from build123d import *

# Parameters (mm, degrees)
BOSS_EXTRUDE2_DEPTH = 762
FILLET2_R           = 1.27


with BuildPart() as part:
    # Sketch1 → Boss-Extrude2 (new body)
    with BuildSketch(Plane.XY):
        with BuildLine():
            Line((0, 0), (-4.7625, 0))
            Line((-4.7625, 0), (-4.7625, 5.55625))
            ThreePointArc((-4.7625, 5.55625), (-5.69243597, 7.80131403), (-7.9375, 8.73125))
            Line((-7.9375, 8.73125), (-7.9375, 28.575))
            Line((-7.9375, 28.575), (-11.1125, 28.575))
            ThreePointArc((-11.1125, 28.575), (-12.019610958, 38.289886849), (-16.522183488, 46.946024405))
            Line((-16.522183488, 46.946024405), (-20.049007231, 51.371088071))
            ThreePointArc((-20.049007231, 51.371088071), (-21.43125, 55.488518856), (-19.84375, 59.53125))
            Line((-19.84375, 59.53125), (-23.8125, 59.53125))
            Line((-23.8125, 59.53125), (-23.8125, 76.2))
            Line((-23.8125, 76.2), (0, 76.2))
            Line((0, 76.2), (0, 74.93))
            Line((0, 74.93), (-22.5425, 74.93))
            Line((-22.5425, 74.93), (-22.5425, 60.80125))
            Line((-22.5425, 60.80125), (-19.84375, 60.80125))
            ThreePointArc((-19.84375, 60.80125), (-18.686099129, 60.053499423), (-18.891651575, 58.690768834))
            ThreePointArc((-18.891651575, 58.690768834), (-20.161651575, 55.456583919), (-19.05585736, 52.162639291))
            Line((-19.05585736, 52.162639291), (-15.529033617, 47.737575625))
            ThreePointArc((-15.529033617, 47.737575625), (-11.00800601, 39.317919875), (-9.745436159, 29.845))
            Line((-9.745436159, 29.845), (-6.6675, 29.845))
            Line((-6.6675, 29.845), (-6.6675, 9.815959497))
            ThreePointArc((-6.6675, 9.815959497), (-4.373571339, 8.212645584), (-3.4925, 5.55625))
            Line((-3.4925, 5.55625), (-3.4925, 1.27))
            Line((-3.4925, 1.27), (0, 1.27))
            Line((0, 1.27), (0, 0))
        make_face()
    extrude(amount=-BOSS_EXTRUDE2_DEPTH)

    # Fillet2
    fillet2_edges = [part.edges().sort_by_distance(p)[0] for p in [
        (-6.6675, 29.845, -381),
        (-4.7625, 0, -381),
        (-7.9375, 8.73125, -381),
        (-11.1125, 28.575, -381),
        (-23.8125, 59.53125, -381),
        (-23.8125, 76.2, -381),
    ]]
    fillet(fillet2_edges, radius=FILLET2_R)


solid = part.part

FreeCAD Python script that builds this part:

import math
import FreeCAD as App
import Part
import Sketcher

V = App.Vector
Q = App.Units.Quantity


def edges_at(feature, points):
    """Names of the edges that pass closest to the given points."""
    edges = feature.Shape.Edges
    near = lambda p: min(range(len(edges)), key=lambda i: edges[i].distToShape(Part.Vertex(*p))[0])
    return sorted({f"Edge{near(p) + 1}" for p in points})

doc = App.newDocument("Part")
body = doc.addObject("PartDesign::Body", "Body")

# Sketch on XY plane
sketch1 = doc.addObject("Sketcher::SketchObject", "Sketch")
body.addObject(sketch1)
sketch1.AttachmentSupport = (doc.XY_Plane, [""])
sketch1.MapMode = "FlatFace"
sketch1.addGeometry(Part.LineSegment(V(-4.8, 0, 0), V(0, 0, 0)), False)
sketch1.addGeometry(Part.LineSegment(V(0, 0, 0), V(0, 1.3, 0)), False)
sketch1.addGeometry(Part.LineSegment(V(0, 1.3, 0), V(-3.5, 1.3, 0)), False)
sketch1.addGeometry(Part.LineSegment(V(-3.5, 1.3, 0), V(-3.5, 5.6, 0)), False)
sketch1.addGeometry(Part.ArcOfCircle(Part.Circle(V(-7.9, 5.6, 0), V(0, 0, 1), 4.4), math.radians(0), math.radians(73)), False)
sketch1.addGeometry(Part.LineSegment(V(-6.7, 9.8, 0), V(-6.7, 29.8, 0)), False)
sketch1.addGeometry(Part.LineSegment(V(-6.7, 29.8, 0), V(-9.7, 29.8, 0)), False)
sketch1.addGeometry(Part.ArcOfCircle(Part.Circle(V(-36.4, 31.1, 0), V(0, 0, 1), 26.7), math.radians(-3), math.radians(39)), False)
sketch1.addGeometry(Part.LineSegment(V(-15.5, 47.7, 0), V(-19.1, 52.2, 0)), False)
sketch1.addGeometry(Part.ArcOfCircle(Part.Circle(V(-15.1, 55.3, 0), V(0, 0, 1), 5.1), math.radians(139), math.radians(219)), False)
sketch1.addGeometry(Part.ArcOfCircle(Part.Circle(V(-19.8, 59.5, 0), V(0, 0, 1), 1.3), math.radians(-41), math.radians(90)), False)
sketch1.addGeometry(Part.LineSegment(V(-19.8, 60.8, 0), V(-22.5, 60.8, 0)), False)
sketch1.addGeometry(Part.LineSegment(V(-22.5, 60.8, 0), V(-22.5, 74.9, 0)), False)
sketch1.addGeometry(Part.LineSegment(V(-22.5, 74.9, 0), V(0, 74.9, 0)), False)
sketch1.addGeometry(Part.LineSegment(V(0, 74.9, 0), V(0, 76.2, 0)), False)
sketch1.addGeometry(Part.LineSegment(V(0, 76.2, 0), V(-23.8, 76.2, 0)), False)
sketch1.addGeometry(Part.LineSegment(V(-23.8, 76.2, 0), V(-23.8, 59.5, 0)), False)
sketch1.addGeometry(Part.LineSegment(V(-23.8, 59.5, 0), V(-19.8, 59.5, 0)), False)
sketch1.addGeometry(Part.ArcOfCircle(Part.Circle(V(-15.1, 55.3, 0), V(0, 0, 1), 6.3), math.radians(139), math.radians(219)), False)
sketch1.addGeometry(Part.LineSegment(V(-20, 51.4, 0), V(-16.5, 46.9, 0)), False)
sketch1.addGeometry(Part.ArcOfCircle(Part.Circle(V(-36.4, 31.1, 0), V(0, 0, 1), 25.4), math.radians(-6), math.radians(39)), False)
sketch1.addGeometry(Part.LineSegment(V(-11.1, 28.6, 0), V(-7.9, 28.6, 0)), False)
sketch1.addGeometry(Part.LineSegment(V(-7.9, 28.6, 0), V(-7.9, 8.7, 0)), False)
sketch1.addGeometry(Part.ArcOfCircle(Part.Circle(V(-7.9, 5.6, 0), V(0, 0, 1), 3.2), math.radians(0), math.radians(90)), False)
sketch1.addGeometry(Part.LineSegment(V(-4.8, 5.6, 0), V(-4.8, 0, 0)), False)
sketch1.addConstraint(Sketcher.Constraint("Coincident", 0, 2, 1, 1))
sketch1.addConstraint(Sketcher.Constraint("Coincident", 1, 2, 2, 1))
sketch1.addConstraint(Sketcher.Constraint("Coincident", 2, 2, 3, 1))
sketch1.addConstraint(Sketcher.Constraint("Tangent", 3, 2, 4, 1))
sketch1.addConstraint(Sketcher.Constraint("Coincident", 4, 2, 5, 1))
sketch1.addConstraint(Sketcher.Constraint("Coincident", 5, 2, 6, 1))
sketch1.addConstraint(Sketcher.Constraint("Coincident", 6, 2, 7, 1))
sketch1.addConstraint(Sketcher.Constraint("Tangent", 7, 2, 8, 1))
sketch1.addConstraint(Sketcher.Constraint("Tangent", 8, 2, 9, 2))
sketch1.addConstraint(Sketcher.Constraint("Tangent", 9, 1, 10, 1))
sketch1.addConstraint(Sketcher.Constraint("Tangent", 10, 2, 11, 1))
sketch1.addConstraint(Sketcher.Constraint("Coincident", 11, 2, 12, 1))
sketch1.addConstraint(Sketcher.Constraint("Coincident", 12, 2, 13, 1))
sketch1.addConstraint(Sketcher.Constraint("Coincident", 13, 2, 14, 1))
sketch1.addConstraint(Sketcher.Constraint("Coincident", 14, 2, 15, 1))
sketch1.addConstraint(Sketcher.Constraint("Coincident", 15, 2, 16, 1))
sketch1.addConstraint(Sketcher.Constraint("Coincident", 16, 2, 17, 1))
sketch1.addConstraint(Sketcher.Constraint("Coincident", 17, 2, 18, 1))
sketch1.addConstraint(Sketcher.Constraint("Tangent", 18, 2, 19, 1))
sketch1.addConstraint(Sketcher.Constraint("Tangent", 19, 2, 20, 2))
sketch1.addConstraint(Sketcher.Constraint("Coincident", 20, 1, 21, 1))
sketch1.addConstraint(Sketcher.Constraint("Coincident", 21, 2, 22, 1))
sketch1.addConstraint(Sketcher.Constraint("Coincident", 22, 2, 23, 2))
sketch1.addConstraint(Sketcher.Constraint("Tangent", 23, 1, 24, 1))
sketch1.addConstraint(Sketcher.Constraint("Coincident", 24, 2, 0, 1))
sketch1.addConstraint(Sketcher.Constraint("Horizontal", 0))
sketch1.addConstraint(Sketcher.Constraint("Vertical", 1))
sketch1.addConstraint(Sketcher.Constraint("Horizontal", 2))
sketch1.addConstraint(Sketcher.Constraint("Vertical", 3))
sketch1.addConstraint(Sketcher.Constraint("Vertical", 5))
sketch1.addConstraint(Sketcher.Constraint("Horizontal", 6))
sketch1.addConstraint(Sketcher.Constraint("Horizontal", 11))
sketch1.addConstraint(Sketcher.Constraint("Vertical", 12))
sketch1.addConstraint(Sketcher.Constraint("Horizontal", 13))
sketch1.addConstraint(Sketcher.Constraint("Vertical", 14))
sketch1.addConstraint(Sketcher.Constraint("Horizontal", 15))
sketch1.addConstraint(Sketcher.Constraint("Vertical", 16))
sketch1.addConstraint(Sketcher.Constraint("Horizontal", 17))
sketch1.addConstraint(Sketcher.Constraint("Horizontal", 21))
sketch1.addConstraint(Sketcher.Constraint("Vertical", 22))
sketch1.addConstraint(Sketcher.Constraint("Vertical", 24))
sketch1.addConstraint(Sketcher.Constraint("Coincident", 0, 2, -1, 1))
sketch1.addConstraint(Sketcher.Constraint("Coincident", 18, 3, 9, 3))
sketch1.addConstraint(Sketcher.Constraint("Coincident", 20, 3, 7, 3))
sketch1.addConstraint(Sketcher.Constraint("Coincident", 23, 3, 4, 3))
sketch1.addConstraint(Sketcher.Constraint("Coincident", 17, 2, 10, 3))
sketch1.addConstraint(Sketcher.Constraint("PointOnObject", 13, 2, -2))
sketch1.addConstraint(Sketcher.Constraint("Parallel", 8, 19))
sketch1.addConstraint(Sketcher.Constraint("Vertical", 23, 3, 21, 2))
sketch1.addConstraint(Sketcher.Constraint("Equal", 1, 14))
sketch1.addConstraint(Sketcher.Constraint("Radius", 20, Q("1 in")))
sketch1.addConstraint(Sketcher.Constraint("Radius", 9, Q("0.2 in")))
sketch1.addConstraint(Sketcher.Constraint("Radius", 7, Q("1.05 in")))
sketch1.addConstraint(Sketcher.Constraint("DistanceY", -1, 1, 14, 2, Q("3 in")))
sketch1.addConstraint(Sketcher.Constraint("Radius", 4, Q("0.175 in")))
sketch1.addConstraint(Sketcher.Constraint("Radius", 23, Q("0.125 in")))
sketch1.addConstraint(Sketcher.Constraint("DistanceY", 1, 1, 1, 2, Q("0.05 in")))
sketch1.addConstraint(Sketcher.Constraint("DistanceX", 0, 1, 0, 2, Q("0.1875 in")))
sketch1.addConstraint(Sketcher.Constraint("DistanceX", 15, 2, 15, 1, Q("0.9375 in")))
sketch1.addConstraint(Sketcher.Constraint("DistanceX", 17, 1, 17, 2, Q("0.15625 in")))
sketch1.addConstraint(Sketcher.Constraint("DistanceX", 21, 1, 21, 2, Q("0.125 in")))
sketch1.addConstraint(Sketcher.Constraint("DistanceY", 16, 2, 16, 1, Q("0.65625 in")))
sketch1.addConstraint(Sketcher.Constraint("DistanceY", 22, 2, 22, 1, Q("0.78125 in")))
sketch1.addConstraint(Sketcher.Constraint("DistanceY", 24, 2, 24, 1, Q("0.21875 in")))
sketch1.addConstraint(Sketcher.Constraint("DistanceX", 4, 3, 4, 2, Q("0.05 in")))
sketch1.addConstraint(Sketcher.Constraint("DistanceX", 15, 2, 12, 2, Q("0.05 in")))
sketch1.addConstraint(Sketcher.Constraint("DistanceY", 20, 1, 6, 2, Q("0.05 in")))
sketch1.addConstraint(Sketcher.Constraint("DistanceY", -1, 1, 7, 3, Q("1.225 in")))
sketch1.addConstraint(Sketcher.Constraint("DistanceX", 8, 2, 18, 3, 3.972599))
pad1 = doc.addObject("PartDesign::Pad", "Pad")
body.addObject(pad1)
pad1.Profile = sketch1
pad1.Length = Q("30 in")
pad1.Reversed = True
doc.recompute()

fillet = doc.addObject("PartDesign::Fillet", "Fillet")
body.addObject(fillet)
fillet.Base = (pad1, edges_at(pad1, [
    (-6.668, 29.845, -381),
    (-4.763, 0, -381),
    (-7.938, 8.731, -381),
    (-11.113, 28.575, -381),
    (-23.812, 59.531, -381),
    (-23.812, 76.2, -381),
]))
fillet.Radius = Q("0.05 in")

doc.recompute()
